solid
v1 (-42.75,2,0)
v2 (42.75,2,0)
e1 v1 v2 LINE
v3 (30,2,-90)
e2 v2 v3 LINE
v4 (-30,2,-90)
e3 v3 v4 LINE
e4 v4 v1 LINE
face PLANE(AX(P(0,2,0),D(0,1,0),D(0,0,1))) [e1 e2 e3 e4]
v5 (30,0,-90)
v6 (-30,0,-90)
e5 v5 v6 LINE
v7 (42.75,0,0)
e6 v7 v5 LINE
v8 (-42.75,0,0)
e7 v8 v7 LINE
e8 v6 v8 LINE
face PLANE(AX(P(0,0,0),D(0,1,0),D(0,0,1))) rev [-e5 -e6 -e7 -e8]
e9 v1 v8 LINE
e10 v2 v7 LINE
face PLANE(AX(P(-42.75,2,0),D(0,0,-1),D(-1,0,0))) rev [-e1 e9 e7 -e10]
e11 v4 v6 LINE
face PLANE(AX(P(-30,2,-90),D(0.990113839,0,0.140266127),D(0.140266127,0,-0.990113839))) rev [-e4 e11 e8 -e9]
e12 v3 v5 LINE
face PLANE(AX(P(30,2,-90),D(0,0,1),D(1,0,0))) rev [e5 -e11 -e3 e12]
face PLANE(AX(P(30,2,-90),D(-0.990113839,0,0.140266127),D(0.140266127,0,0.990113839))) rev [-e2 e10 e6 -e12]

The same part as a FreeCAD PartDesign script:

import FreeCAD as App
import Part
import Sketcher
from FreeCAD import Vector

doc = App.newDocument("Part")
body = doc.addObject("PartDesign::Body", "Body")

sketch1 = body.newObject("Sketcher::SketchObject", "Sketch")
sketch1.AttachmentSupport = (doc.getObject("XZ_Plane"), [""])
sketch1.MapMode = "FlatFace"
sketch1.addGeometry(Part.LineSegment(Vector(30, -90, 0), Vector(-30, -90, 0)), False)
sketch1.addGeometry(Part.LineSegment(Vector(-30, -90, 0), Vector(-43, 0, 0)), False)
sketch1.addGeometry(Part.LineSegment(Vector(-43, 0, 0), Vector(43, 0, 0)), False)
sketch1.addGeometry(Part.LineSegment(Vector(43, 0, 0), Vector(30, -90, 0)), False)
sketch1.addConstraint(Sketcher.Constraint("Coincident", 0, 2, 1, 1))
sketch1.addConstraint(Sketcher.Constraint("Coincident", 1, 2, 2, 1))
sketch1.addConstraint(Sketcher.Constraint("Coincident", 2, 2, 3, 1))
sketch1.addConstraint(Sketcher.Constraint("Coincident", 3, 2, 0, 1))
sketch1.addConstraint(Sketcher.Constraint("Horizontal", 0))
sketch1.addConstraint(Sketcher.Constraint("Horizontal", 2))
sketch1.addConstraint(Sketcher.Constraint("Symmetric", 1, 2, 2, 2, -1, 1))
sketch1.addConstraint(Sketcher.Constraint("Equal", 1, 3))
sketch1.addConstraint(Sketcher.Constraint("DistanceX", 0, 2, 0, 1, 60.0))
sketch1.addConstraint(Sketcher.Constraint("DistanceX", 2, 1, 2, 2, 85.5))
sketch1.addConstraint(Sketcher.Constraint("DistanceY", 0, 2, -1, 1, 90.0))
pad1 = body.newObject("PartDesign::Pad", "Pad")
pad1.Profile = sketch1
pad1.Length = 2
pad1.Reversed = True

doc.recompute()
